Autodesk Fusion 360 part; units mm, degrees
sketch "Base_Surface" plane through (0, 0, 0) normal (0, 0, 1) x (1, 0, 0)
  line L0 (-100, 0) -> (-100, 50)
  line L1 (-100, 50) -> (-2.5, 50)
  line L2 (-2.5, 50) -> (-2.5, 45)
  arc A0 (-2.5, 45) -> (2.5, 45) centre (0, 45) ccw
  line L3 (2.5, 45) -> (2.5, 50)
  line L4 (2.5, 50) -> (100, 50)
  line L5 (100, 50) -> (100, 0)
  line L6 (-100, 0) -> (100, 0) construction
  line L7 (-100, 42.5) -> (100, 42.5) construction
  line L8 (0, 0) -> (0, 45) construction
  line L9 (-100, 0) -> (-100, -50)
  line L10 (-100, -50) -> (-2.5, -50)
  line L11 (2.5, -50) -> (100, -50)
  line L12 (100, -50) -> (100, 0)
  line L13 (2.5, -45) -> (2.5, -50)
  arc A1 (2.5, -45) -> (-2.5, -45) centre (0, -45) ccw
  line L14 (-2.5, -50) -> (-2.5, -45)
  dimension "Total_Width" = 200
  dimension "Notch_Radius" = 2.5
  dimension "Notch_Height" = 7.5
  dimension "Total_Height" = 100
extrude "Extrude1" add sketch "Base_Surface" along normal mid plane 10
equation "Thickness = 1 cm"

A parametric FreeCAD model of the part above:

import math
import FreeCAD as App
import Part
import Sketcher

doc = App.newDocument("Part")
body = doc.addObject("PartDesign::Body", "Body")

# Sketch on XY plane
sketch1 = body.newObject("Sketcher::SketchObject", "Sketch")
sketch1.AttachmentSupport = (doc.getObject("XY_Plane"), [""])
sketch1.MapMode = "FlatFace"
sketch1.addGeometry(Part.LineSegment(App.Vector(-100, 50, 0), App.Vector(-100, -50, 0)), False)
sketch1.addGeometry(Part.LineSegment(App.Vector(-100, -50, 0), App.Vector(-2.5, -50, 0)), False)
sketch1.addGeometry(Part.LineSegment(App.Vector(-2.5, -50, 0), App.Vector(-2.5, -45, 0)), False)
sketch1.addGeometry(Part.ArcOfCircle(Part.Circle(App.Vector(0, -45, 0), App.Vector(0, 0, 1), 2.5), math.radians(0), math.radians(180)), False)
sketch1.addGeometry(Part.LineSegment(App.Vector(2.5, -45, 0), App.Vector(2.5, -50, 0)), False)
sketch1.addGeometry(Part.LineSegment(App.Vector(2.5, -50, 0), App.Vector(100, -50, 0)), False)
sketch1.addGeometry(Part.LineSegment(App.Vector(100, -50, 0), App.Vector(100, 50, 0)), False)
sketch1.addGeometry(Part.LineSegment(App.Vector(100, 50, 0), App.Vector(2.5, 50, 0)), False)
sketch1.addGeometry(Part.LineSegment(App.Vector(2.5, 50, 0), App.Vector(2.5, 45, 0)), False)
sketch1.addGeometry(Part.ArcOfCircle(Part.Circle(App.Vector(0, 45, 0), App.Vector(0, 0, 1), 2.5), math.radians(180), math.radians(360)), False)
sketch1.addGeometry(Part.LineSegment(App.Vector(-2.5, 45, 0), App.Vector(-2.5, 50, 0)), False)
sketch1.addGeometry(Part.LineSegment(App.Vector(-2.5, 50, 0), App.Vector(-100, 50, 0)), False)
sketch1.addConstraint(Sketcher.Constraint("Coincident", 0, 2, 1, 1))
sketch1.addConstraint(Sketcher.Constraint("Coincident", 1, 2, 2, 1))
sketch1.addConstraint(Sketcher.Constraint("Tangent", 2, 2, 3, 2))
sketch1.addConstraint(Sketcher.Constraint("Tangent", 3, 1, 4, 1))
sketch1.addConstraint(Sketcher.Constraint("Coincident", 4, 2, 5, 1))
sketch1.addConstraint(Sketcher.Constraint("Coincident", 5, 2, 6, 1))
sketch1.addConstraint(Sketcher.Constraint("Coincident", 6, 2, 7, 1))
sketch1.addConstraint(Sketcher.Constraint("Coincident", 7, 2, 8, 1))
sketch1.addConstraint(Sketcher.Constraint("Tangent", 8, 2, 9, 2))
sketch1.addConstraint(Sketcher.Constraint("Tangent", 9, 1, 10, 1))
sketch1.addConstraint(Sketcher.Constraint("Coincident", 10, 2, 11, 1))
sketch1.addConstraint(Sketcher.Constraint("Coincident", 11, 2, 0, 1))
sketch1.addConstraint(Sketcher.Constraint("Vertical", 0))
sketch1.addConstraint(Sketcher.Constraint("Horizontal", 1))
sketch1.addConstraint(Sketcher.Constraint("Vertical", 2))
sketch1.addConstraint(Sketcher.Constraint("Vertical", 4))
sketch1.addConstraint(Sketcher.Constraint("Horizontal", 5))
sketch1.addConstraint(Sketcher.Constraint("Vertical", 6))
sketch1.addConstraint(Sketcher.Constraint("Horizontal", 7))
sketch1.addConstraint(Sketcher.Constraint("Vertical", 8))
sketch1.addConstraint(Sketcher.Constraint("Vertical", 10))
sketch1.addConstraint(Sketcher.Constraint("Horizontal", 11))
sketch1.addConstraint(Sketcher.Constraint("Equal", 3, 9))
sketch1.addConstraint(Sketcher.Constraint("Symmetric", 3, 3, 9, 3, -1, 1))
sketch1.addConstraint(Sketcher.Constraint("Symmetric", 0, 2, 6, 2, -1, 1))
sketch1.addConstraint(Sketcher.Constraint("Symmetric", 1, 2, 4, 2, -2))
sketch1.addConstraint(Sketcher.Constraint("Horizontal", 7, 2, 10, 2))
sketch1.addConstraint(Sketcher.Constraint("Radius", 3, 2.5))
sketch1.addConstraint(Sketcher.Constraint("DistanceY", 0, 2, 0, 1, 100.0))
sketch1.addConstraint(Sketcher.Constraint("DistanceX", 0, 2, -1, 1, 100.0))
sketch1.addConstraint(Sketcher.Constraint("DistanceY", 2, 1, 2, 2, 5.0))
pad1 = body.newObject("PartDesign::Pad", "Pad")
pad1.Profile = sketch1
pad1.Length = 10
pad1.Midplane = True

doc.recompute()
